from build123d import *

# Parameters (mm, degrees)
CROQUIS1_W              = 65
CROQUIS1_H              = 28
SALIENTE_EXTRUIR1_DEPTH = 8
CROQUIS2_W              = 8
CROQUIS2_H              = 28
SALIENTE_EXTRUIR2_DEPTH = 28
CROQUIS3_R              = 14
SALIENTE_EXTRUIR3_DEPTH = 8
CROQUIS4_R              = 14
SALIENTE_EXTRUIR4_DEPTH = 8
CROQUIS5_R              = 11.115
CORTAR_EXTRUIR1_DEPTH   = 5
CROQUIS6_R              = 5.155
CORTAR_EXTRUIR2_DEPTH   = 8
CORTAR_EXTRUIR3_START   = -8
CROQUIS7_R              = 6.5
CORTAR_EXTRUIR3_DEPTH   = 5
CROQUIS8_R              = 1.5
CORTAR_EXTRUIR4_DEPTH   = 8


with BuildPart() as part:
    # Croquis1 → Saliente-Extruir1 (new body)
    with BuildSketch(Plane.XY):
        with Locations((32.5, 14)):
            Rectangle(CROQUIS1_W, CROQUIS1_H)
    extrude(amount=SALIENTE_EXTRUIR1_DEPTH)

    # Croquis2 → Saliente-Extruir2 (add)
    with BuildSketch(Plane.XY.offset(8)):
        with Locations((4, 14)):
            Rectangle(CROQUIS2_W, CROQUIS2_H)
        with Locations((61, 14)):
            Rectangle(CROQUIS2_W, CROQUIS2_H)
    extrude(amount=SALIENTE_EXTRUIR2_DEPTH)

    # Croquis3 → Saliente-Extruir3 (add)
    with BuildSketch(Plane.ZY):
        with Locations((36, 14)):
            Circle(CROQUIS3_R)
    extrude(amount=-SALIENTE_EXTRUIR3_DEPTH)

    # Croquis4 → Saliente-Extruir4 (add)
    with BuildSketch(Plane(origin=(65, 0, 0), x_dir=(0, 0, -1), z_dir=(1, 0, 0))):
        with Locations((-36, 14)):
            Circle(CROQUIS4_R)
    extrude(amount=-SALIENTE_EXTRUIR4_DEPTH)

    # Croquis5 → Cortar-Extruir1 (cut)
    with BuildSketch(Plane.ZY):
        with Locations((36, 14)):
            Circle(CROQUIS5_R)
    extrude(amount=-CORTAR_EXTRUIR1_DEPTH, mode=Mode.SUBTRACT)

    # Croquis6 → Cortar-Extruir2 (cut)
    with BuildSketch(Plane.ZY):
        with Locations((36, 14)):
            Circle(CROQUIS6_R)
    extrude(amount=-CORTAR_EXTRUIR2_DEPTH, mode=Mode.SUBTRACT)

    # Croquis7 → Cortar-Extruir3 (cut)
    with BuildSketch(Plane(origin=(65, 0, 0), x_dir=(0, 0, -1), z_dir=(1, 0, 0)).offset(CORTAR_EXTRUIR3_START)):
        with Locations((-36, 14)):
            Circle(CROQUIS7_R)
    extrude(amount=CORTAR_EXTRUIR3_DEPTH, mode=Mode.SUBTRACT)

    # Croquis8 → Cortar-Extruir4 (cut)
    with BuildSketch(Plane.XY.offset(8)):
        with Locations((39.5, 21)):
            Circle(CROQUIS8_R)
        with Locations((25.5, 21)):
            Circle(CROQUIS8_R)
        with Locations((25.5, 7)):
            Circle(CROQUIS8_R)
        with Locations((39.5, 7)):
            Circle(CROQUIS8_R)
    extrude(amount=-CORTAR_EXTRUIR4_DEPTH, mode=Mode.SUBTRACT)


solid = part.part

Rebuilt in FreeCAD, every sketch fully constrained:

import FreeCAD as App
import Part
import Sketcher

V = App.Vector
Q = App.Units.Quantity

doc = App.newDocument("Part")
body = doc.addObject("PartDesign::Body", "Body")

# Sketch on XY plane
sketch1 = body.newObject("Sketcher::SketchObject", "Sketch")
sketch1.AttachmentSupport = (doc.getObject("XY_Plane"), [""])
sketch1.MapMode = "FlatFace"
sketch1.addGeometry([
    Part.LineSegment(V(0, 28, 0), V(0, 0, 0)),
    Part.LineSegment(V(0, 0, 0), V(65, 0, 0)),
    Part.LineSegment(V(65, 0, 0), V(65, 28, 0)),
    Part.LineSegment(V(65, 28, 0), V(0, 28, 0)),
], False)
sketch1.addConstraint([
    Sketcher.Constraint("Coincident", 0, 2, 1, 1),
    Sketcher.Constraint("Coincident", 1, 2, 2, 1),
    Sketcher.Constraint("Coincident", 2, 2, 3, 1),
    Sketcher.Constraint("Coincident", 3, 2, 0, 1),
    Sketcher.Constraint("Vertical", 0),
    Sketcher.Constraint("Horizontal", 1),
    Sketcher.Constraint("Vertical", 2),
    Sketcher.Constraint("Horizontal", 3),
    Sketcher.Constraint("Coincident", 0, 2, -1, 1),
    Sketcher.Constraint("DistanceX", 1, 1, 1, 2, Q("65 mm")),
    Sketcher.Constraint("DistanceY", 0, 2, 0, 1, Q("28 mm")),
])
pad1 = body.newObject("PartDesign::Pad", "Pad")
pad1.Profile = sketch1
pad1.Length = 8

# Sketch on XY plane
sketch2 = body.newObject("Sketcher::SketchObject", "Sketch001")
sketch2.AttachmentSupport = (doc.getObject("XY_Plane"), [""])
sketch2.MapMode = "FlatFace"
sketch2.AttachmentOffset = App.Placement(V(0, 0, 8), App.Rotation())
sketch2.addGeometry([
    Part.LineSegment(V(0, 28, 0), V(0, 0, 0)),  # 0
    Part.LineSegment(V(0, 0, 0), V(8, 0, 0)),  # 1
    Part.LineSegment(V(8, 0, 0), V(8, 28, 0)),  # 2
    Part.LineSegment(V(8, 28, 0), V(0, 28, 0)),  # 3
    Part.LineSegment(V(57, 28, 0), V(57, 0, 0)),  # 4
    Part.LineSegment(V(57, 0, 0), V(65, 0, 0)),  # 5
    Part.LineSegment(V(65, 0, 0), V(65, 28, 0)),  # 6
    Part.LineSegment(V(65, 28, 0), V(57, 28, 0)),  # 7
], False)
sketch2.addConstraint([
    Sketcher.Constraint("Coincident", 0, 2, 1, 1),
    Sketcher.Constraint("Coincident", 1, 2, 2, 1),
    Sketcher.Constraint("Coincident", 2, 2, 3, 1),
    Sketcher.Constraint("Coincident", 3, 2, 0, 1),
    Sketcher.Constraint("Coincident", 4, 2, 5, 1),
    Sketcher.Constraint("Coincident", 5, 2, 6, 1),
    Sketcher.Constraint("Coincident", 6, 2, 7, 1),
    Sketcher.Constraint("Coincident", 7, 2, 4, 1),
    Sketcher.Constraint("Vertical", 0),
    Sketcher.Constraint("Horizontal", 1),
    Sketcher.Constraint("Vertical", 2),
    Sketcher.Constraint("Horizontal", 3),
    Sketcher.Constraint("Vertical", 4),
    Sketcher.Constraint("Horizontal", 5),
    Sketcher.Constraint("Vertical", 6),
    Sketcher.Constraint("Horizontal", 7),
    Sketcher.Constraint("Coincident", 0, 2, -1, 1),
    Sketcher.Constraint("PointOnObject", 4, 2, -1),
    Sketcher.Constraint("Horizontal", 3, 2, 6, 2),
    Sketcher.Constraint("Equal", 3, 5),
    Sketcher.Constraint("DistanceX", 1, 1, 1, 2, Q("8 mm")),
    Sketcher.Constraint("DistanceY", 0, 2, 0, 1, Q("28 mm")),
    Sketcher.Constraint("DistanceX", -1, 1, 4, 2, Q("57 mm")),
])
pad2 = body.newObject("PartDesign::Pad", "Pad001")
pad2.Profile = sketch2
pad2.Length = 28

# Sketch on YZ plane
sketch3 = body.newObject("Sketcher::SketchObject", "Sketch002")
sketch3.AttachmentSupport = (doc.getObject("YZ_Plane"), [""])
sketch3.MapMode = "FlatFace"
sketch3.addGeometry(Part.Circle(V(14, 36, 0), V(0, 0, 1), 14), False)
sketch3.addConstraint([
    Sketcher.Constraint("Diameter", 0, Q("28 mm")),
    Sketcher.Constraint("DistanceX", -1, 1, 0, 3, Q("14 mm")),
    Sketcher.Constraint("DistanceY", -1, 1, 0, 3, Q("36 mm")),
])
pad3 = body.newObject("PartDesign::Pad", "Pad002")
pad3.Profile = sketch3
pad3.Length = 8

# Sketch on YZ plane
sketch4 = body.newObject("Sketcher::SketchObject", "Sketch003")
sketch4.AttachmentSupport = (doc.getObject("YZ_Plane"), [""])
sketch4.MapMode = "FlatFace"
sketch4.AttachmentOffset = App.Placement(V(0, 0, 65), App.Rotation())
sketch4.addGeometry(Part.Circle(V(14, 36, 0), V(0, 0, 1), 14), False)
sketch4.addConstraint([
    Sketcher.Constraint("Diameter", 0, Q("28 mm")),
    Sketcher.Constraint("DistanceX", -1, 1, 0, 3, Q("14 mm")),
    Sketcher.Constraint("DistanceY", -1, 1, 0, 3, Q("36 mm")),
])
pad4 = body.newObject("PartDesign::Pad", "Pad003")
pad4.Profile = sketch4
pad4.Length = 8
pad4.Reversed = True

# Sketch on YZ plane
sketch5 = body.newObject("Sketcher::SketchObject", "Sketch004")
sketch5.AttachmentSupport = (doc.getObject("YZ_Plane"), [""])
sketch5.MapMode = "FlatFace"
sketch5.addGeometry(Part.Circle(V(14, 36, 0), V(0, 0, 1), 11), False)
sketch5.addConstraint([
    Sketcher.Constraint("Diameter", 0, Q("22.23 mm")),
    Sketcher.Constraint("DistanceX", -1, 1, 0, 3, Q("14 mm")),
    Sketcher.Constraint("DistanceY", -1, 1, 0, 3, Q("36 mm")),
])
pocket1 = body.newObject("PartDesign::Pocket", "Pocket")
pocket1.Profile = sketch5
pocket1.Length = 5
pocket1.Reversed = True

# Sketch on YZ plane
sketch6 = body.newObject("Sketcher::SketchObject", "Sketch005")
sketch6.AttachmentSupport = (doc.getObject("YZ_Plane"), [""])
sketch6.MapMode = "FlatFace"
sketch6.addGeometry(Part.Circle(V(14, 36, 0), V(0, 0, 1), 5), False)
sketch6.addConstraint([
    Sketcher.Constraint("Diameter", 0, Q("10.31 mm")),
    Sketcher.Constraint("DistanceX", -1, 1, 0, 3, Q("14 mm")),
    Sketcher.Constraint("DistanceY", -1, 1, 0, 3, Q("36 mm")),
])
pocket2 = body.newObject("PartDesign::Pocket", "Pocket001")
pocket2.Profile = sketch6
pocket2.Length = 8
pocket2.Reversed = True

# Sketch on YZ plane
sketch7 = body.newObject("Sketcher::SketchObject", "Sketch006")
sketch7.AttachmentSupport = (doc.getObject("YZ_Plane"), [""])
sketch7.MapMode = "FlatFace"
sketch7.AttachmentOffset = App.Placement(V(0, 0, 57), App.Rotation())
sketch7.addGeometry(Part.Circle(V(14, 36, 0), V(0, 0, 1), 6), False)
sketch7.addConstraint([
    Sketcher.Constraint("Diameter", 0, Q("13 mm")),
    Sketcher.Constraint("DistanceX", -1, 1, 0, 3, Q("14 mm")),
    Sketcher.Constraint("DistanceY", -1, 1, 0, 3, Q("36 mm")),
])
pocket3 = body.newObject("PartDesign::Pocket", "Pocket002")
pocket3.Profile = sketch7
pocket3.Length = 5
pocket3.Reversed = True

# Sketch on XY plane
sketch8 = body.newObject("Sketcher::SketchObject", "Sketch007")
sketch8.AttachmentSupport = (doc.getObject("XY_Plane"), [""])
sketch8.MapMode = "FlatFace"
sketch8.AttachmentOffset = App.Placement(V(0, 0, 8), App.Rotation())
sketch8.addGeometry([
    Part.Circle(V(39.5, 21, 0), V(0, 0, 1), 1.5),
    Part.Circle(V(25.5, 21, 0), V(0, 0, 1), 1.5),
    Part.Circle(V(25.5, 7, 0), V(0, 0, 1), 1.5),
    Part.Circle(V(39.5, 7, 0), V(0, 0, 1), 1.5),
], False)
sketch8.addConstraint([
    Sketcher.Constraint("Equal", 0, 1),
    Sketcher.Constraint("Equal", 1, 2),
    Sketcher.Constraint("Equal", 2, 3),
    Sketcher.Constraint("Horizontal", 0, 3, 1, 3),
    Sketcher.Constraint("Horizontal", 2, 3, 3, 3),
    Sketcher.Constraint("Vertical", 1, 3, 2, 3),
    Sketcher.Constraint("Vertical", 0, 3, 3, 3),
    Sketcher.Constraint("Diameter", 0, Q("3 mm")),
    Sketcher.Constraint("DistanceY", -1, 1, 0, 3, Q("21 mm")),
    Sketcher.Constraint("DistanceY", -1, 1, 2, 3, Q("7 mm")),
    Sketcher.Constraint("DistanceX", 1, 3, 0, 3, Q("14 mm")),
    Sketcher.Constraint("DistanceX", -1, 1, 0, 3, Q("39.5 mm")),
])
pocket4 = body.newObject("PartDesign::Pocket", "Pocket003")
pocket4.Profile = sketch8
pocket4.Length = 8

doc.recompute()
